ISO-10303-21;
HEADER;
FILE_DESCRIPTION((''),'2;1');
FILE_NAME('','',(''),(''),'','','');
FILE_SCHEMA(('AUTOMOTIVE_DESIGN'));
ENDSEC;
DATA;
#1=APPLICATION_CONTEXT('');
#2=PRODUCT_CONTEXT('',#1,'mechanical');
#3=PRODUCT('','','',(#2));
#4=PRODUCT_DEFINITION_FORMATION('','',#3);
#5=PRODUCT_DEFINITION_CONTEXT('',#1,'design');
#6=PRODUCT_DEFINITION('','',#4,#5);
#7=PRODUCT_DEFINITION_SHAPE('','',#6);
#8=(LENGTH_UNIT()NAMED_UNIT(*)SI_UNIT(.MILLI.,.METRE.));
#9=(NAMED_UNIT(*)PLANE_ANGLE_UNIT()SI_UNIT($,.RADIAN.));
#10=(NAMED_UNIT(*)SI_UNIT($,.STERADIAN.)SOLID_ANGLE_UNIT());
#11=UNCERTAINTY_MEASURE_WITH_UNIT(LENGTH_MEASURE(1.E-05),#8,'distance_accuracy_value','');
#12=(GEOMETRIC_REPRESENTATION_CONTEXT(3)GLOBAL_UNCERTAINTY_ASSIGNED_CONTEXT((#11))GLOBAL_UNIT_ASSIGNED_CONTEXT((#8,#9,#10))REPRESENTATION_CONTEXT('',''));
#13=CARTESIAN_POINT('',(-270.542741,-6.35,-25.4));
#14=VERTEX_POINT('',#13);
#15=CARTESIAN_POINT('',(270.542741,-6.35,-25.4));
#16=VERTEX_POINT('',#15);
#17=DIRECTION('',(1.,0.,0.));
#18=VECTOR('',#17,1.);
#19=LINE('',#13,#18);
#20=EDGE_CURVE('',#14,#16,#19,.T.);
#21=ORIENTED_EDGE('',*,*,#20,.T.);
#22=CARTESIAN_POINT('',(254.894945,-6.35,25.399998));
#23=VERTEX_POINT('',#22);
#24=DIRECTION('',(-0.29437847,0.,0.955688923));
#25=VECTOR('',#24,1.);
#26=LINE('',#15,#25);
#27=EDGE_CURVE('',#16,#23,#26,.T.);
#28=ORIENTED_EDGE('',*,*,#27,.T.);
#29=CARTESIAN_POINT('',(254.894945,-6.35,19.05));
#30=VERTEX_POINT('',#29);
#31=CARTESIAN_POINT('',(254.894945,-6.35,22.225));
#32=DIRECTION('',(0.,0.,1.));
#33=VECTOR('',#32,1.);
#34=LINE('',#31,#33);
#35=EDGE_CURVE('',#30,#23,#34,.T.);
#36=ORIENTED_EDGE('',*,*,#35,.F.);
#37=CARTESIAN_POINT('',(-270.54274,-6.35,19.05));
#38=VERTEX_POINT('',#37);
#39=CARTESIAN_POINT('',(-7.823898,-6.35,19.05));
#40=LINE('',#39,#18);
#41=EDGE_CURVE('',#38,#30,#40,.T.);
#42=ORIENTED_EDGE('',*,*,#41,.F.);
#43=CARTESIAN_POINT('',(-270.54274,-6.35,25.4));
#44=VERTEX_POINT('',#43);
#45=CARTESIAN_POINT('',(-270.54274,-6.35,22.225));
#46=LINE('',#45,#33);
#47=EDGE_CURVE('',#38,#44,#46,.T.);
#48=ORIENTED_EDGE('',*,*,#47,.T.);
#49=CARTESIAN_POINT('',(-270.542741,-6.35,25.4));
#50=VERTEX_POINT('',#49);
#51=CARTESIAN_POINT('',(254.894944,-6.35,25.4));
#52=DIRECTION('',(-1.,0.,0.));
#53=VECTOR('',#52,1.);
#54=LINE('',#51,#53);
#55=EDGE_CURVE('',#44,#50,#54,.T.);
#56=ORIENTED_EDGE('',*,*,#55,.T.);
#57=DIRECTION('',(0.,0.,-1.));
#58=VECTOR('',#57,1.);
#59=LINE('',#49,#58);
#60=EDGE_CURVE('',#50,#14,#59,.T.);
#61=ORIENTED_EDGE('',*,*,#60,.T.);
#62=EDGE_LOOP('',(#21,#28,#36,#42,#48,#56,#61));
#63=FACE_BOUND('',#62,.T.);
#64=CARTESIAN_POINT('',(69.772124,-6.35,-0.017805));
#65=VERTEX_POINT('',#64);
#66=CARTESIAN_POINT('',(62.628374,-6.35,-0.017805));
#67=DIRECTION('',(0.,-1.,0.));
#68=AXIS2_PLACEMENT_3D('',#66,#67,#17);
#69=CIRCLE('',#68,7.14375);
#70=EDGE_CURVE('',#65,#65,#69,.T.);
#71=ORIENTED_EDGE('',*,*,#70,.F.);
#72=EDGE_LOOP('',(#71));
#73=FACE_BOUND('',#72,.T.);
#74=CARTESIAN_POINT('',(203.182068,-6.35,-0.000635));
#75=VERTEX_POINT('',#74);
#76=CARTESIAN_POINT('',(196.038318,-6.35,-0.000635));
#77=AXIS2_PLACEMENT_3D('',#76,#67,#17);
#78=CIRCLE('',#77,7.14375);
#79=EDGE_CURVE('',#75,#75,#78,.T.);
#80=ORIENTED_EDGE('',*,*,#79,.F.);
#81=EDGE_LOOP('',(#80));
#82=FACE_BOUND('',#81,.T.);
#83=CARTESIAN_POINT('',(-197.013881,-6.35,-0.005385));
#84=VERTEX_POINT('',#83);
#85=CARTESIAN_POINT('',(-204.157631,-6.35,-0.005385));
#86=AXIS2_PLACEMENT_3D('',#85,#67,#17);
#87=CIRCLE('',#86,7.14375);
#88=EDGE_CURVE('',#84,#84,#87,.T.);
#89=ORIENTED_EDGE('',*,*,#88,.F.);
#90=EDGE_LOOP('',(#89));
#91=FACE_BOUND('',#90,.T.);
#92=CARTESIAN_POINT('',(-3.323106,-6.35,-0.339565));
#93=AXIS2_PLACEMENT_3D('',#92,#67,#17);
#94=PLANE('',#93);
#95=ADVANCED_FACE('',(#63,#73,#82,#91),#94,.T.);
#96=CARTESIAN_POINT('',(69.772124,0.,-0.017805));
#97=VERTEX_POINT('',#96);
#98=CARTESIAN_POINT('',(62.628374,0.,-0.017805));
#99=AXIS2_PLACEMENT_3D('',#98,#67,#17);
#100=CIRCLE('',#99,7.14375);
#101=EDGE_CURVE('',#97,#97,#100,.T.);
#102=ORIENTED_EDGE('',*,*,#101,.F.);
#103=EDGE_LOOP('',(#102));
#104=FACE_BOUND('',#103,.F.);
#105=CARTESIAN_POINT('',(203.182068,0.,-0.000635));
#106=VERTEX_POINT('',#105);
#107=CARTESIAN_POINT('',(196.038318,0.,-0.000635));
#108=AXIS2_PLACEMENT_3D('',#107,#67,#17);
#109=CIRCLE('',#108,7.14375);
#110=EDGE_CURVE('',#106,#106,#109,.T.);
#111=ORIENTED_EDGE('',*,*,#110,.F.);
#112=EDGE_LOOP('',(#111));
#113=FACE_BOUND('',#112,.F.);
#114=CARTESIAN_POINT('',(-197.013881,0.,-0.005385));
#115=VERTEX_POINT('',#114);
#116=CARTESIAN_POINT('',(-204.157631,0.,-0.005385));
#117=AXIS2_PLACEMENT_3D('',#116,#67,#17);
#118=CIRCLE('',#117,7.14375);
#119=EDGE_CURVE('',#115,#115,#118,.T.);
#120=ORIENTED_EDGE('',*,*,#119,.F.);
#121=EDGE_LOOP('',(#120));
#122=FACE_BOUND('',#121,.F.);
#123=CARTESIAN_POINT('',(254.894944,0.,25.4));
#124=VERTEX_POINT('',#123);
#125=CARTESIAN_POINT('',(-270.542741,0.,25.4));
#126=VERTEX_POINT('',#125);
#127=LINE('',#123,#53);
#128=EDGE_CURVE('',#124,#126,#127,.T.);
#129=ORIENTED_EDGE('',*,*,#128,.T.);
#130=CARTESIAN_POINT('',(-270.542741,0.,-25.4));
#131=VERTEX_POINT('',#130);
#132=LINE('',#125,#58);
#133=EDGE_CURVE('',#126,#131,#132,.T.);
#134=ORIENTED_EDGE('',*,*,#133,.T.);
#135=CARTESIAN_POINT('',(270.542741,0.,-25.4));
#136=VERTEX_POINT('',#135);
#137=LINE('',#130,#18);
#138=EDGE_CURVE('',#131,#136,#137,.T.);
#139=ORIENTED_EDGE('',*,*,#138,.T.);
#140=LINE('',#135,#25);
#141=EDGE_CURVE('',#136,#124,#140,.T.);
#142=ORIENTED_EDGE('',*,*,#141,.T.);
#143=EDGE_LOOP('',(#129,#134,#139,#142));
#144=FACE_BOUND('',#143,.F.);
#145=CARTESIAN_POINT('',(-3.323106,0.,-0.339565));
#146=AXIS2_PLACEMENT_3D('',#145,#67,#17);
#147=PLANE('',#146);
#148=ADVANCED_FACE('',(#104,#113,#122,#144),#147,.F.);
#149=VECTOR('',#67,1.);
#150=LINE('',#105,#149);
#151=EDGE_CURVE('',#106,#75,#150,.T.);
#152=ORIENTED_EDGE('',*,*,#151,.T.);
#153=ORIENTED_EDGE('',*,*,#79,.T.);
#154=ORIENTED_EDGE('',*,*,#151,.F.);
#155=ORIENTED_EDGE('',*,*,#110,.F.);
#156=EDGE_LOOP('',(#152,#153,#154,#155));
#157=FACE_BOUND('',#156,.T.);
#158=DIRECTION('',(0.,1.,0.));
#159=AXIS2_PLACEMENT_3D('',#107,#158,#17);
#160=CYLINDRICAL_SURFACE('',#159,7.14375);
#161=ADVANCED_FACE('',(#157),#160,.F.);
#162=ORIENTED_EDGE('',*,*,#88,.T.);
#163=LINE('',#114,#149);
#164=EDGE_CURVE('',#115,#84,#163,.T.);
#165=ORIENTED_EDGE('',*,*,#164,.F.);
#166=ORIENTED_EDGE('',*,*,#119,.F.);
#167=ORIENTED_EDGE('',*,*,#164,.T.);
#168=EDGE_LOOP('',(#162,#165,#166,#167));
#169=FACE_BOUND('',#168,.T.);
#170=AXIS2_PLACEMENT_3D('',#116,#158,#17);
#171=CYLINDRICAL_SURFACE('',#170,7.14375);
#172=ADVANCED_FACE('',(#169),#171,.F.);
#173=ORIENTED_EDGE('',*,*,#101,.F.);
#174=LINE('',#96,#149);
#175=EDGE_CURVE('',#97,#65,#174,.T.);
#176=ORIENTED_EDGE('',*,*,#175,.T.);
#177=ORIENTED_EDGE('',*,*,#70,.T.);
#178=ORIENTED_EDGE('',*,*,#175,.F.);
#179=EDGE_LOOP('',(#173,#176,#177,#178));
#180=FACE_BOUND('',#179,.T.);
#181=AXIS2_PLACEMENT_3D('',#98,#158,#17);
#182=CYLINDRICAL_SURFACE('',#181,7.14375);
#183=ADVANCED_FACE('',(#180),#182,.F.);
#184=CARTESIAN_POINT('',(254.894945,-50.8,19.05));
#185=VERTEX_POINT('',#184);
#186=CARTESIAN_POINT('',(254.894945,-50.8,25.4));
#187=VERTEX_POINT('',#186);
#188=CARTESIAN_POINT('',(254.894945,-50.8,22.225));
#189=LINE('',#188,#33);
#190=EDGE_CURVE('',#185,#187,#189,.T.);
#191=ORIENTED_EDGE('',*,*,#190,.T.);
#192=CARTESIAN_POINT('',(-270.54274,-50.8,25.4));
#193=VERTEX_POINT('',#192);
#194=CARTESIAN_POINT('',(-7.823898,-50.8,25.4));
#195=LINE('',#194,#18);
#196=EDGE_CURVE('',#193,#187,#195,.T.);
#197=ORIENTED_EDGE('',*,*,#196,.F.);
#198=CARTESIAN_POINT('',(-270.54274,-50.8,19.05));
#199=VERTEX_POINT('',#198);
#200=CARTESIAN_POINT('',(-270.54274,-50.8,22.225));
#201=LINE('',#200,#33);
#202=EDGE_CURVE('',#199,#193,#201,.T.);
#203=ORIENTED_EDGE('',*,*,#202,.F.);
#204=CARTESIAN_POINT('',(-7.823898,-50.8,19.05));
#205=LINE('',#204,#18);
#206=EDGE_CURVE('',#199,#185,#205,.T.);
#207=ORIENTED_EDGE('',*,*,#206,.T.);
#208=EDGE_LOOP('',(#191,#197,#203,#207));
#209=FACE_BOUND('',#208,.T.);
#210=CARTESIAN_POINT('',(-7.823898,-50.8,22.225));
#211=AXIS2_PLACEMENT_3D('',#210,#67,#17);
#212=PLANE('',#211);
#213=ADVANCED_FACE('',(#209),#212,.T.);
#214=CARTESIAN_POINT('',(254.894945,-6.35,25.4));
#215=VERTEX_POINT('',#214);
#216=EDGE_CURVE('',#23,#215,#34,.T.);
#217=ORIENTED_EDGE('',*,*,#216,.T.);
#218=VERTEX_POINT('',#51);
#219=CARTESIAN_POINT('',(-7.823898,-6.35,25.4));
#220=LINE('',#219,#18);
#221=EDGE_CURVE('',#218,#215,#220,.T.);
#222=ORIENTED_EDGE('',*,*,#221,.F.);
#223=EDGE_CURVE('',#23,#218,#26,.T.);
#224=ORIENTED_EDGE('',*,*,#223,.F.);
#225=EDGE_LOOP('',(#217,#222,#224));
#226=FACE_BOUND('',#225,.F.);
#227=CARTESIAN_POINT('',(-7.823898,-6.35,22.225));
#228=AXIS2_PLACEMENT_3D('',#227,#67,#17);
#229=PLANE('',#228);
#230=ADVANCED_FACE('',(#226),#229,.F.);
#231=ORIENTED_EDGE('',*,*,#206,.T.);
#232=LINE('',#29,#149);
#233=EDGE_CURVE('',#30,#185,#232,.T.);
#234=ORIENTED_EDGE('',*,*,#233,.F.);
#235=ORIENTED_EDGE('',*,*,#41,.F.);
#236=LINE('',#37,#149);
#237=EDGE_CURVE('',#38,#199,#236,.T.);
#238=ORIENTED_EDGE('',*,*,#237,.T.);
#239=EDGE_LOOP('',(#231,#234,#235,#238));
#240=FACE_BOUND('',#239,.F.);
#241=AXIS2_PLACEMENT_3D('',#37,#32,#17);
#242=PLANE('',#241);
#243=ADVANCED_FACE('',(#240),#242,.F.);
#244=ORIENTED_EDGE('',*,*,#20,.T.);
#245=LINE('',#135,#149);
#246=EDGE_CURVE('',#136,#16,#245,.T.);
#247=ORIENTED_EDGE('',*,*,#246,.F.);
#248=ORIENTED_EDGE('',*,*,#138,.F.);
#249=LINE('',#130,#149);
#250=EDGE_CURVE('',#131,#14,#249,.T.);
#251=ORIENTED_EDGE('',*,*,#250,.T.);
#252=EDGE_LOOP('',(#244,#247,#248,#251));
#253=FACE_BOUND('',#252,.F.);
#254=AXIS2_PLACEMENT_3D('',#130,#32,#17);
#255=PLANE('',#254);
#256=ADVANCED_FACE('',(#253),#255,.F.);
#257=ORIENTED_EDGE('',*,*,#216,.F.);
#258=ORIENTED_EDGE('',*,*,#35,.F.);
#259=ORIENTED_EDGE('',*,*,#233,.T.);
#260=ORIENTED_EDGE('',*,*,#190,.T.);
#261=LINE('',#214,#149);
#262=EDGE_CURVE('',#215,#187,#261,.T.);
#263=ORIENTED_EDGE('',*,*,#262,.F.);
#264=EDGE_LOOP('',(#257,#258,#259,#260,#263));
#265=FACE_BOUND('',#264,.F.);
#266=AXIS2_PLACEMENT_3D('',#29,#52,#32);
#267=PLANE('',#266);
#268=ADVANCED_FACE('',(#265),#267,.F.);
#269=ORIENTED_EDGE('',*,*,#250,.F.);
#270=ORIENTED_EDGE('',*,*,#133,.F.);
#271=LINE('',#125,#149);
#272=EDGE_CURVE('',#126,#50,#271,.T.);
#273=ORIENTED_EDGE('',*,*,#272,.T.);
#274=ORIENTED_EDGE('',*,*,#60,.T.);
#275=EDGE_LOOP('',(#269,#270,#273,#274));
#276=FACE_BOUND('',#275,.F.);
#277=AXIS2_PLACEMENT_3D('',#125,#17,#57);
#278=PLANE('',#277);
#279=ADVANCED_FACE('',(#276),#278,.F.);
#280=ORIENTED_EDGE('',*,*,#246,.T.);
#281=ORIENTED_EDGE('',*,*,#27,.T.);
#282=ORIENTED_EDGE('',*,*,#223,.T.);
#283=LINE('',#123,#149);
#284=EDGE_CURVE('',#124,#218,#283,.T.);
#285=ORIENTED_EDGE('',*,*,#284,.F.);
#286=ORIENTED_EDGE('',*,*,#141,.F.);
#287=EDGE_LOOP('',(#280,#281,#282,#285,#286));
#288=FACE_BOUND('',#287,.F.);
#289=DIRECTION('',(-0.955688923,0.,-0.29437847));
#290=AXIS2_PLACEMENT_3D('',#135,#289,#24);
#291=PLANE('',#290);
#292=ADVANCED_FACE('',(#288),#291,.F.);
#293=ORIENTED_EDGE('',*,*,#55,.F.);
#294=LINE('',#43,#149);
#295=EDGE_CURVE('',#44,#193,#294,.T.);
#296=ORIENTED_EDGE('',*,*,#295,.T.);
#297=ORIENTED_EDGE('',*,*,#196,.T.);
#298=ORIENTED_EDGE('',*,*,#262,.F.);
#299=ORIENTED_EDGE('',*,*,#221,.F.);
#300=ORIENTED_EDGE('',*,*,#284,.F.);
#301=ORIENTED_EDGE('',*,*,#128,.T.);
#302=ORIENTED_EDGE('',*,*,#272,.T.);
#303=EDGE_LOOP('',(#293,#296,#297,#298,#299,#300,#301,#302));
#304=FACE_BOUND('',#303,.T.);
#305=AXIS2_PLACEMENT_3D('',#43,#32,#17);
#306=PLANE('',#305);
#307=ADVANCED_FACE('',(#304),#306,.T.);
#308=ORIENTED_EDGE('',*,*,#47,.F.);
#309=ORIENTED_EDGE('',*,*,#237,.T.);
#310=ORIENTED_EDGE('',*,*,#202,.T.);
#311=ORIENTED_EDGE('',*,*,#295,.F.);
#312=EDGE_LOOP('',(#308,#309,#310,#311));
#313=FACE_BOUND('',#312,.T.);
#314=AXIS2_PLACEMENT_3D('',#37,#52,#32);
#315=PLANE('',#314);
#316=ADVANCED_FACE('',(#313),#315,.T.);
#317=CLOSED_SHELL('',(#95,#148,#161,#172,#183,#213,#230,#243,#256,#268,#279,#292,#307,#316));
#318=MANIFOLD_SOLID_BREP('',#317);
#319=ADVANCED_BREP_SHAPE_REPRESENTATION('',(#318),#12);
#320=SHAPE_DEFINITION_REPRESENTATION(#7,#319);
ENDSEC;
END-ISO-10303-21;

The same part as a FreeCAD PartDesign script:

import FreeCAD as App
import Part
import Sketcher
from FreeCAD import Vector
Q = App.Units.Quantity


def add_polygon(sketch, points):
    """Adds a closed chain of lines whose ends are joined by coincident constraints."""
    first, n = sketch.GeometryCount, len(points)
    for a, b in zip(points, points[1:] + points[:1]):
        sketch.addGeometry(Part.LineSegment(App.Vector(*a, 0), App.Vector(*b, 0)), False)
    for i in range(n):
        sketch.addConstraint(Sketcher.Constraint("Coincident", first + i, 2, first + (i + 1) % n, 1))

doc = App.newDocument("Part")
body = doc.addObject("PartDesign::Body", "Body")

sketch1 = body.newObject("Sketcher::SketchObject", "Sketch")
sketch1.AttachmentSupport = (doc.getObject("XZ_Plane"), [""])
sketch1.MapMode = "FlatFace"
add_polygon(sketch1, [(271, -25), (255, 25), (-271, 25), (-271, -25)])
sketch1.addGeometry(Part.Circle(Vector(63, 0, 0), Vector(0, 0, 1), 7), False)
sketch1.addGeometry(Part.Circle(Vector(-204, 0, 0), Vector(0, 0, 1), 7), False)
sketch1.addGeometry(Part.Circle(Vector(196, 0, 0), Vector(0, 0, 1), 7), False)
sketch1.addConstraint([
    Sketcher.Constraint("Horizontal", 1),
    Sketcher.Constraint("Vertical", 2),
    Sketcher.Constraint("Horizontal", 3),
    Sketcher.Constraint("Equal", 4, 5),
    Sketcher.Constraint("Equal", 5, 6),
    Sketcher.Constraint("Symmetric", 1, 2, 3, 2, -1, 1),
    Sketcher.Constraint("DistanceY", 2, 2, 2, 1, Q("2 in")),
    Sketcher.Constraint("Diameter", 4, Q("0.5625 in")),
    Sketcher.Constraint("DistanceX", 3, 1, 3, 2, Q("541.085482 mm")),
    Sketcher.Constraint("Distance", 0, Q("53.155372 mm")),
    Sketcher.Constraint("DistanceX", 5, 3, -1, 1, Q("204.157631 mm")),
    Sketcher.Constraint("DistanceX", -1, 1, 6, 3, Q("196.038318 mm")),
    Sketcher.Constraint("DistanceY", 4, 3, 5, 3, Q("0.01242 mm")),
    Sketcher.Constraint("DistanceY", 4, 3, 6, 3, Q("0.01717 mm")),
    Sketcher.Constraint("DistanceX", 4, 3, 0, 2, Q("192.26657 mm")),
    Sketcher.Constraint("DistanceY", 4, 3, -1, 1, Q("0.017805 mm")),
])
pad1 = body.newObject("PartDesign::Pad", "Pad")
pad1.Profile = sketch1
pad1.Length = Q("0.25 in")

sketch2 = body.newObject("Sketcher::SketchObject", "Sketch001")
sketch2.AttachmentSupport = (doc.getObject("XZ_Plane"), [""])
sketch2.MapMode = "FlatFace"
sketch2.AttachmentOffset = App.Placement(Vector(0, 0, 0.25 * 25.4), App.Rotation())
add_polygon(sketch2, [(-271, 25), (-271, 19), (255, 19), (255, 25)])
sketch2.addConstraint([
    Sketcher.Constraint("Vertical", 0),
    Sketcher.Constraint("Horizontal", 1),
    Sketcher.Constraint("Vertical", 2),
    Sketcher.Constraint("Horizontal", 3),
    Sketcher.Constraint("DistanceY", -1, 1, 2, 2, Q("1 in")),
    Sketcher.Constraint("DistanceY", 0, 2, 0, 1, Q("0.25 in")),
    Sketcher.Constraint("DistanceX", 1, 1, 1, 2, Q("525.437685 mm")),
    Sketcher.Constraint("DistanceX", 0, 2, -1, 1, Q("270.54274 mm")),
])
pad2 = body.newObject("PartDesign::Pad", "Pad001")
pad2.Profile = sketch2
pad2.Length = Q("1.75 in")

doc.recompute()
